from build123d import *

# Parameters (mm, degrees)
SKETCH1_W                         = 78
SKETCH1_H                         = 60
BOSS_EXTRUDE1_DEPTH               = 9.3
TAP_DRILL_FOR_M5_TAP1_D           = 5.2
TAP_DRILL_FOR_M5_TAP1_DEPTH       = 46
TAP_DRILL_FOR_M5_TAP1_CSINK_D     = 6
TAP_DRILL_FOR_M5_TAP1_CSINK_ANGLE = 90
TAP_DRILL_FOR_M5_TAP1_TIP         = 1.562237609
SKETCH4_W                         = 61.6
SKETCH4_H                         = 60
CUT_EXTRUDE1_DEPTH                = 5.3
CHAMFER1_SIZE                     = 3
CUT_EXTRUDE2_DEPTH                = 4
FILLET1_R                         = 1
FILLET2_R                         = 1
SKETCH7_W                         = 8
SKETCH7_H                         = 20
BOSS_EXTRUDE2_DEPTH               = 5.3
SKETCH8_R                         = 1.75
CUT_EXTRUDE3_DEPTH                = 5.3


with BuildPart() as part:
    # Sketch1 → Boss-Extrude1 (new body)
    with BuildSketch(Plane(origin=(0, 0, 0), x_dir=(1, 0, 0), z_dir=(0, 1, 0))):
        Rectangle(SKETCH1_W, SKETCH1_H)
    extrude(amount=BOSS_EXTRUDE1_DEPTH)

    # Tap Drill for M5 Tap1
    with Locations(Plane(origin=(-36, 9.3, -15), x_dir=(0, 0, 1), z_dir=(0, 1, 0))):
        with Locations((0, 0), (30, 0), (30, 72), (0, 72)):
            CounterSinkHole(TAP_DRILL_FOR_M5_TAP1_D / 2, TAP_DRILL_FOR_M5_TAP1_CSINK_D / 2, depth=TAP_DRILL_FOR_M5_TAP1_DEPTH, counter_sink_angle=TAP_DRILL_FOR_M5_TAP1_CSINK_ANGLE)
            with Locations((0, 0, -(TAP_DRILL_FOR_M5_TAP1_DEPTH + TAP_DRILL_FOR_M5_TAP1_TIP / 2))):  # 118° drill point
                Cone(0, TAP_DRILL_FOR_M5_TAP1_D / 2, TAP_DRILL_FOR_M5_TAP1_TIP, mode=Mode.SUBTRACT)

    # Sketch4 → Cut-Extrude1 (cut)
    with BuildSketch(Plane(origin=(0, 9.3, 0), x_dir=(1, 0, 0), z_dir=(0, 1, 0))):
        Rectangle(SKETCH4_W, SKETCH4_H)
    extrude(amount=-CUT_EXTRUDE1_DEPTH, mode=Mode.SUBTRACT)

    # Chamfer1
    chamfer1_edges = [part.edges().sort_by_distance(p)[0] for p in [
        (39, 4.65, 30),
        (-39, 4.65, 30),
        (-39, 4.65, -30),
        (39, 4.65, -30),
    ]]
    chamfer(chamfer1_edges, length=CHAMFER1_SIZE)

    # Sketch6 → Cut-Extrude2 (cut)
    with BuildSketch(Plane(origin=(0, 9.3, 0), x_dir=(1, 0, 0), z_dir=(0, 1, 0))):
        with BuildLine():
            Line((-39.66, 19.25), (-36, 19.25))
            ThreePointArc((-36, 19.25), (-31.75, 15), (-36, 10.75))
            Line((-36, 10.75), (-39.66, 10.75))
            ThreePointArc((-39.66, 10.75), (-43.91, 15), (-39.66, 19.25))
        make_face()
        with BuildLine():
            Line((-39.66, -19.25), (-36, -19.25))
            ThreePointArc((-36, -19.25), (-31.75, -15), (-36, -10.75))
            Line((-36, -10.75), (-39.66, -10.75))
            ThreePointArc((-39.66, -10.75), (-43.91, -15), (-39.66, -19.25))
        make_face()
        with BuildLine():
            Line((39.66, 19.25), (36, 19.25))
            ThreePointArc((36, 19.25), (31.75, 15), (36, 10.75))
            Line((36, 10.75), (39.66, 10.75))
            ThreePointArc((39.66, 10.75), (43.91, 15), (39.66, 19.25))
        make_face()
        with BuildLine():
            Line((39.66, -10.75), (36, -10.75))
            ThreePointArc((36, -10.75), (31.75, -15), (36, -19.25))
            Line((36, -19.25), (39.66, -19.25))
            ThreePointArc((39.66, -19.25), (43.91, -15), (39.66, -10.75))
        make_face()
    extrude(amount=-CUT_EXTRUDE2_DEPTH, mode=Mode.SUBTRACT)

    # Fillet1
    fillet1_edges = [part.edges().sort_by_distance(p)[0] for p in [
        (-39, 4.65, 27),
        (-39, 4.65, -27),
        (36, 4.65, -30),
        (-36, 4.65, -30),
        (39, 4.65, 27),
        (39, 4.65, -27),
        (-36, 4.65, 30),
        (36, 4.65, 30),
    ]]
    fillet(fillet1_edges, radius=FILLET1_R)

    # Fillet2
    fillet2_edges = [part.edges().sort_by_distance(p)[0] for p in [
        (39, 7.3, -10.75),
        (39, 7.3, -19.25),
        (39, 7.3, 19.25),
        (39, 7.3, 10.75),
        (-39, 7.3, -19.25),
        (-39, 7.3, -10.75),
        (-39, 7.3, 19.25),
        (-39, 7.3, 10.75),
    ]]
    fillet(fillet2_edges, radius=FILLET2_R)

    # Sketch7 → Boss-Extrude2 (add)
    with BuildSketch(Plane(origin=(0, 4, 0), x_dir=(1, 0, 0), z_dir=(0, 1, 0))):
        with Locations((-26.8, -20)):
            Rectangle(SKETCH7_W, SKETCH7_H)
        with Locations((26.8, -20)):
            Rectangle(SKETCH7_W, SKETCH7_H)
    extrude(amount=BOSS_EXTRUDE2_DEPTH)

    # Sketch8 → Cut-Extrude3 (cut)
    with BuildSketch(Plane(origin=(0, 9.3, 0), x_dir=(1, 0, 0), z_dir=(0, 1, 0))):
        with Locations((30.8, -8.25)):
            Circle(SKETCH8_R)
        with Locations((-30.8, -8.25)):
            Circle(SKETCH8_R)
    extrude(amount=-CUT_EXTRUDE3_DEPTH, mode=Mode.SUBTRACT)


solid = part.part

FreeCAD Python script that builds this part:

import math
import FreeCAD as App
import Part
import Sketcher
Q = App.Units.Quantity


def edges_at(feature, points):
    """Names of the edges that pass closest to the given points."""
    edges = feature.Shape.Edges
    near = lambda p: min(range(len(edges)), key=lambda i: edges[i].distToShape(Part.Vertex(*p))[0])
    return sorted({f"Edge{near(p) + 1}" for p in points})

doc = App.newDocument("Part")
body = doc.addObject("PartDesign::Body", "Body")

# Sketch on XZ plane
sketch1 = body.newObject("Sketcher::SketchObject", "Sketch")
sketch1.AttachmentSupport = (doc.getObject("XZ_Plane"), [""])
sketch1.MapMode = "FlatFace"
sketch1.addGeometry(Part.LineSegment(App.Vector(-39, -30, 0), App.Vector(-39, 30, 0)), False)
sketch1.addGeometry(Part.LineSegment(App.Vector(-39, 30, 0), App.Vector(39, 30, 0)), False)
sketch1.addGeometry(Part.LineSegment(App.Vector(39, 30, 0), App.Vector(39, -30, 0)), False)
sketch1.addGeometry(Part.LineSegment(App.Vector(39, -30, 0), App.Vector(-39, -30, 0)), False)
sketch1.addConstraint(Sketcher.Constraint("Coincident", 0, 2, 1, 1))
sketch1.addConstraint(Sketcher.Constraint("Coincident", 1, 2, 2, 1))
sketch1.addConstraint(Sketcher.Constraint("Coincident", 2, 2, 3, 1))
sketch1.addConstraint(Sketcher.Constraint("Coincident", 3, 2, 0, 1))
sketch1.addConstraint(Sketcher.Constraint("Vertical", 0))
sketch1.addConstraint(Sketcher.Constraint("Horizontal", 1))
sketch1.addConstraint(Sketcher.Constraint("Vertical", 2))
sketch1.addConstraint(Sketcher.Constraint("Horizontal", 3))
sketch1.addConstraint(Sketcher.Constraint("Symmetric", 0, 2, 2, 2, -1, 1))
sketch1.addConstraint(Sketcher.Constraint("DistanceX", 1, 1, 1, 2, Q("78 mm")))
sketch1.addConstraint(Sketcher.Constraint("DistanceY", 0, 1, 0, 2, Q("60 mm")))
pad1 = body.newObject("PartDesign::Pad", "Pad")
pad1.Profile = sketch1
pad1.Length = 9.3
pad1.Reversed = True

# Sketch on XZ plane
sketch2 = body.newObject("Sketcher::SketchObject", "Sketch001")
sketch2.AttachmentSupport = (doc.getObject("XZ_Plane"), [""])
sketch2.MapMode = "FlatFace"
sketch2.AttachmentOffset = App.Placement(App.Vector(0, 0, -9.3), App.Rotation())
sketch2.addGeometry(Part.Circle(App.Vector(-36, -15, 0), App.Vector(0, 0, 1), 2.6), False)
sketch2.addGeometry(Part.Circle(App.Vector(-36, 15, 0), App.Vector(0, 0, 1), 2.6), False)
sketch2.addGeometry(Part.Circle(App.Vector(36, 15, 0), App.Vector(0, 0, 1), 2.6), False)
sketch2.addGeometry(Part.Circle(App.Vector(36, -15, 0), App.Vector(0, 0, 1), 2.6), False)
sketch2.addConstraint(Sketcher.Constraint("Equal", 0, 1))
sketch2.addConstraint(Sketcher.Constraint("Equal", 1, 2))
sketch2.addConstraint(Sketcher.Constraint("Equal", 2, 3))
sketch2.addConstraint(Sketcher.Constraint("Symmetric", 0, 3, 2, 3, -1, 1))
sketch2.addConstraint(Sketcher.Constraint("Symmetric", 1, 3, 3, 3, -1, 1))
sketch2.addConstraint(Sketcher.Constraint("Symmetric", 1, 3, 2, 3, -2))
sketch2.addConstraint(Sketcher.Constraint("Diameter", 0, Q("5.2 mm")))
sketch2.addConstraint(Sketcher.Constraint("DistanceX", 0, 3, -1, 1, Q("36 mm")))
sketch2.addConstraint(Sketcher.Constraint("DistanceY", 0, 3, -1, 1, Q("15 mm")))
doc.recompute()
hole = body.newObject("PartDesign::Hole", "Hole")
hole.Profile = sketch2
hole.ThreadType = "None"
hole.Diameter = 5.2
hole.DepthType = "Dimension"
hole.Depth = 46
hole.DrillPoint = "Angled"
hole.DrillPointAngle = 118
hole.HoleCutType = "Countersink"
hole.HoleCutDiameter = 6
hole.HoleCutCountersinkAngle = 90
hole.Reversed = True

# Sketch on XZ plane
sketch3 = body.newObject("Sketcher::SketchObject", "Sketch002")
sketch3.AttachmentSupport = (doc.getObject("XZ_Plane"), [""])
sketch3.MapMode = "FlatFace"
sketch3.AttachmentOffset = App.Placement(App.Vector(0, 0, -9.3), App.Rotation())
sketch3.addGeometry(Part.LineSegment(App.Vector(-31, -30, 0), App.Vector(-31, 30, 0)), False)
sketch3.addGeometry(Part.LineSegment(App.Vector(-31, 30, 0), App.Vector(31, 30, 0)), False)
sketch3.addGeometry(Part.LineSegment(App.Vector(31, 30, 0), App.Vector(31, -30, 0)), False)
sketch3.addGeometry(Part.LineSegment(App.Vector(31, -30, 0), App.Vector(-31, -30, 0)), False)
sketch3.addConstraint(Sketcher.Constraint("Coincident", 0, 2, 1, 1))
sketch3.addConstraint(Sketcher.Constraint("Coincident", 1, 2, 2, 1))
sketch3.addConstraint(Sketcher.Constraint("Coincident", 2, 2, 3, 1))
sketch3.addConstraint(Sketcher.Constraint("Coincident", 3, 2, 0, 1))
sketch3.addConstraint(Sketcher.Constraint("Vertical", 0))
sketch3.addConstraint(Sketcher.Constraint("Horizontal", 1))
sketch3.addConstraint(Sketcher.Constraint("Vertical", 2))
sketch3.addConstraint(Sketcher.Constraint("Horizontal", 3))
sketch3.addConstraint(Sketcher.Constraint("Symmetric", 0, 2, 2, 2, -1, 1))
sketch3.addConstraint(Sketcher.Constraint("DistanceY", 0, 1, 0, 2, Q("60 mm")))
sketch3.addConstraint(Sketcher.Constraint("DistanceX", 1, 1, 1, 2, Q("61.6 mm")))
pocket1 = body.newObject("PartDesign::Pocket", "Pocket")
pocket1.Profile = sketch3
pocket1.Length = 5.3
pocket1.Reversed = True
doc.recompute()

chamfer = body.newObject("PartDesign::Chamfer", "Chamfer")
chamfer.Base = (pocket1, edges_at(pocket1, [
    (39, 4.65, 30),
    (-39, 4.65, 30),
    (-39, 4.65, -30),
    (39, 4.65, -30),
]))
chamfer.Size = 3

# Sketch on XZ plane
sketch4 = body.newObject("Sketcher::SketchObject", "Sketch003")
sketch4.AttachmentSupport = (doc.getObject("XZ_Plane"), [""])
sketch4.MapMode = "FlatFace"
sketch4.AttachmentOffset = App.Placement(App.Vector(0, 0, -9.3), App.Rotation())
sketch4.addGeometry(Part.LineSegment(App.Vector(-36, -19.2, 0), App.Vector(-39.7, -19.2, 0)), False)
sketch4.addGeometry(Part.ArcOfCircle(Part.Circle(App.Vector(-39.7, -15, 0), App.Vector(0, 0, 1), 4.2), math.radians(90), math.radians(270)), False)
sketch4.addGeometry(Part.LineSegment(App.Vector(-39.7, -10.8, 0), App.Vector(-36, -10.8, 0)), False)
sketch4.addGeometry(Part.ArcOfCircle(Part.Circle(App.Vector(-36, -15, 0), App.Vector(0, 0, 1), 4.2), math.radians(-90), math.radians(90)), False)
sketch4.addGeometry(Part.LineSegment(App.Vector(-39.7, 19.2, 0), App.Vector(-36, 19.2, 0)), False)
sketch4.addGeometry(Part.ArcOfCircle(Part.Circle(App.Vector(-36, 15, 0), App.Vector(0, 0, 1), 4.2), math.radians(-90), math.radians(90)), False)
sketch4.addGeometry(Part.LineSegment(App.Vector(-36, 10.8, 0), App.Vector(-39.7, 10.8, 0)), False)
sketch4.addGeometry(Part.ArcOfCircle(Part.Circle(App.Vector(-39.7, 15, 0), App.Vector(0, 0, 1), 4.2), math.radians(90), math.radians(270)), False)
sketch4.addGeometry(Part.LineSegment(App.Vector(39.7, -19.2, 0), App.Vector(36, -19.2, 0)), False)
sketch4.addGeometry(Part.ArcOfCircle(Part.Circle(App.Vector(36, -15, 0), App.Vector(0, 0, 1), 4.2), math.radians(90), math.radians(270)), False)
sketch4.addGeometry(Part.LineSegment(App.Vector(36, -10.8, 0), App.Vector(39.7, -10.8, 0)), False)
sketch4.addGeometry(Part.ArcOfCircle(Part.Circle(App.Vector(39.7, -15, 0), App.Vector(0, 0, 1), 4.2), math.radians(-90), math.radians(90)), False)
sketch4.addGeometry(Part.LineSegment(App.Vector(39.7, 10.8, 0), App.Vector(36, 10.8, 0)), False)
sketch4.addGeometry(Part.ArcOfCircle(Part.Circle(App.Vector(36, 15, 0), App.Vector(0, 0, 1), 4.2), math.radians(90), math.radians(270)), False)
sketch4.addGeometry(Part.LineSegment(App.Vector(36, 19.2, 0), App.Vector(39.7, 19.2, 0)), False)
sketch4.addGeometry(Part.ArcOfCircle(Part.Circle(App.Vector(39.7, 15, 0), App.Vector(0, 0, 1), 4.2), math.radians(-90), math.radians(90)), False)
sketch4.addConstraint(Sketcher.Constraint("Tangent", 0, 2, 1, 2))
sketch4.addConstraint(Sketcher.Constraint("Tangent", 1, 1, 2, 1))
sketch4.addConstraint(Sketcher.Constraint("Tangent", 2, 2, 3, 2))
sketch4.addConstraint(Sketcher.Constraint("Tangent", 3, 1, 0, 1))
sketch4.addConstraint(Sketcher.Constraint("Tangent", 4, 2, 5, 2))
sketch4.addConstraint(Sketcher.Constraint("Tangent", 5, 1, 6, 1))
sketch4.addConstraint(Sketcher.Constraint("Tangent", 6, 2, 7, 2))
sketch4.addConstraint(Sketcher.Constraint("Tangent", 7, 1, 4, 1))
sketch4.addConstraint(Sketcher.Constraint("Tangent", 8, 2, 9, 2))
sketch4.addConstraint(Sketcher.Constraint("Tangent", 9, 1, 10, 1))
sketch4.addConstraint(Sketcher.Constraint("Tangent", 10, 2, 11, 2))
sketch4.addConstraint(Sketcher.Constraint("Tangent", 11, 1, 8, 1))
sketch4.addConstraint(Sketcher.Constraint("Tangent", 12, 2, 13, 2))
sketch4.addConstraint(Sketcher.Constraint("Tangent", 13, 1, 14, 1))
sketch4.addConstraint(Sketcher.Constraint("Tangent", 14, 2, 15, 2))
sketch4.addConstraint(Sketcher.Constraint("Tangent", 15, 1, 12, 1))
sketch4.addConstraint(Sketcher.Constraint("Horizontal", 0))
sketch4.addConstraint(Sketcher.Constraint("Horizontal", 2))
sketch4.addConstraint(Sketcher.Constraint("Horizontal", 4))
sketch4.addConstraint(Sketcher.Constraint("Horizontal", 6))
sketch4.addConstraint(Sketcher.Constraint("Horizontal", 8))
sketch4.addConstraint(Sketcher.Constraint("Horizontal", 10))
sketch4.addConstraint(Sketcher.Constraint("Horizontal", 12))
sketch4.addConstraint(Sketcher.Constraint("Horizontal", 14))
sketch4.addConstraint(Sketcher.Constraint("Equal", 3, 5))
sketch4.addConstraint(Sketcher.Constraint("Equal", 7, 9))
sketch4.addConstraint(Sketcher.Constraint("Equal", 11, 13))
sketch4.addConstraint(Sketcher.Constraint("Symmetric", 5, 3, 9, 3, -1, 1))
sketch4.addConstraint(Sketcher.Constraint("Symmetric", 3, 3, 13, 3, -1, 1))
sketch4.addConstraint(Sketcher.Constraint("Symmetric", 3, 3, 9, 3, -2))
sketch4.addConstraint(Sketcher.Constraint("Vertical", 1, 3, 7, 3))
sketch4.addConstraint(Sketcher.Constraint("Vertical", 11, 3, 15, 3))
sketch4.addConstraint(Sketcher.Constraint("Equal", 6, 8))
sketch4.addConstraint(Sketcher.Constraint("Radius", 1, Q("4.25 mm")))
sketch4.addConstraint(Sketcher.Constraint("DistanceY", 1, 3, -1, 1, Q("15 mm")))
sketch4.addConstraint(Sketcher.Constraint("DistanceX", 3, 3, -1, 1, Q("36 mm")))
sketch4.addConstraint(Sketcher.Constraint("DistanceX", 0, 2, 0, 1, Q("3.66 mm")))
pocket2 = body.newObject("PartDesign::Pocket", "Pocket001")
pocket2.Profile = sketch4
pocket2.Length = 4
pocket2.Reversed = True
doc.recompute()

fillet = body.newObject("PartDesign::Fillet", "Fillet")
fillet.Base = (pocket2, edges_at(pocket2, [
    (-39, 4.65, 27),
    (-39, 4.65, -27),
    (36, 4.65, -30),
    (-36, 4.65, -30),
    (39, 4.65, 27),
    (39, 4.65, -27),
    (-36, 4.65, 30),
    (36, 4.65, 30),
]))
fillet.Radius = 1
doc.recompute()

fillet2 = body.newObject("PartDesign::Fillet", "Fillet001")
fillet2.Base = (fillet, edges_at(fillet, [
    (39, 7.3, -10.75),
    (39, 7.3, -19.25),
    (39, 7.3, 19.25),
    (39, 7.3, 10.75),
    (-39, 7.3, -19.25),
    (-39, 7.3, -10.75),
    (-39, 7.3, 19.25),
    (-39, 7.3, 10.75),
]))
fillet2.Radius = 1

# Sketch on XZ plane
sketch5 = body.newObject("Sketcher::SketchObject", "Sketch004")
sketch5.AttachmentSupport = (doc.getObject("XZ_Plane"), [""])
sketch5.MapMode = "FlatFace"
sketch5.AttachmentOffset = App.Placement(App.Vector(0, 0, -4), App.Rotation())
sketch5.addGeometry(Part.LineSegment(App.Vector(-31, 10, 0), App.Vector(-31, 30, 0)), False)
sketch5.addGeometry(Part.LineSegment(App.Vector(-31, 30, 0), App.Vector(-23, 30, 0)), False)
sketch5.addGeometry(Part.LineSegment(App.Vector(-23, 30, 0), App.Vector(-23, 10, 0)), False)
sketch5.addGeometry(Part.LineSegment(App.Vector(-23, 10, 0), App.Vector(-31, 10, 0)), False)
sketch5.addGeometry(Part.LineSegment(App.Vector(23, 10, 0), App.Vector(23, 30, 0)), False)
sketch5.addGeometry(Part.LineSegment(App.Vector(23, 30, 0), App.Vector(31, 30, 0)), False)
sketch5.addGeometry(Part.LineSegment(App.Vector(31, 30, 0), App.Vector(31, 10, 0)), False)
sketch5.addGeometry(Part.LineSegment(App.Vector(31, 10, 0), App.Vector(23, 10, 0)), False)
sketch5.addConstraint(Sketcher.Constraint("Coincident", 0, 2, 1, 1))
sketch5.addConstraint(Sketcher.Constraint("Coincident", 1, 2, 2, 1))
sketch5.addConstraint(Sketcher.Constraint("Coincident", 2, 2, 3, 1))
sketch5.addConstraint(Sketcher.Constraint("Coincident", 3, 2, 0, 1))
sketch5.addConstraint(Sketcher.Constraint("Coincident", 4, 2, 5, 1))
sketch5.addConstraint(Sketcher.Constraint("Coincident", 5, 2, 6, 1))
sketch5.addConstraint(Sketcher.Constraint("Coincident", 6, 2, 7, 1))
sketch5.addConstraint(Sketcher.Constraint("Coincident", 7, 2, 4, 1))
sketch5.addConstraint(Sketcher.Constraint("Vertical", 0))
sketch5.addConstraint(Sketcher.Constraint("Horizontal", 1))
sketch5.addConstraint(Sketcher.Constraint("Vertical", 2))
sketch5.addConstraint(Sketcher.Constraint("Horizontal", 3))
sketch5.addConstraint(Sketcher.Constraint("Vertical", 4))
sketch5.addConstraint(Sketcher.Constraint("Horizontal", 5))
sketch5.addConstraint(Sketcher.Constraint("Vertical", 6))
sketch5.addConstraint(Sketcher.Constraint("Horizontal", 7))
sketch5.addConstraint(Sketcher.Constraint("Symmetric", 1, 2, 4, 2, -2))
sketch5.addConstraint(Sketcher.Constraint("Symmetric", 3, 2, 6, 2, -2))
sketch5.addConstraint(Sketcher.Constraint("DistanceX", 1, 1, 1, 2, Q("8 mm")))
sketch5.addConstraint(Sketcher.Constraint("DistanceY", 0, 1, 0, 2, Q("20 mm")))
sketch5.addConstraint(Sketcher.Constraint("DistanceY", -1, 1, 0, 2, Q("30 mm")))
sketch5.addConstraint(Sketcher.Constraint("DistanceX", 0, 2, -1, 1, Q("30.8 mm")))
pad2 = body.newObject("PartDesign::Pad", "Pad001")
pad2.Profile = sketch5
pad2.Length = 5.3
pad2.Reversed = True

# Sketch on XZ plane
sketch6 = body.newObject("Sketcher::SketchObject", "Sketch005")
sketch6.AttachmentSupport = (doc.getObject("XZ_Plane"), [""])
sketch6.MapMode = "FlatFace"
sketch6.AttachmentOffset = App.Placement(App.Vector(0, 0, -9.3), App.Rotation())
sketch6.addGeometry(Part.Circle(App.Vector(30.8, 8.2, 0), App.Vector(0, 0, 1), 1.8), False)
sketch6.addGeometry(Part.Circle(App.Vector(-30.8, 8.2, 0), App.Vector(0, 0, 1), 1.8), False)
sketch6.addConstraint(Sketcher.Constraint("Equal", 0, 1))
sketch6.addConstraint(Sketcher.Constraint("Symmetric", 0, 3, 1, 3, -2))
sketch6.addConstraint(Sketcher.Constraint("Diameter", 0, Q("3.5 mm")))
sketch6.addConstraint(Sketcher.Constraint("DistanceX", -1, 1, 0, 3, Q("30.8 mm")))
sketch6.addConstraint(Sketcher.Constraint("DistanceY", -1, 1, 0, 3, Q("8.25 mm")))
pocket3 = body.newObject("PartDesign::Pocket", "Pocket002")
pocket3.Profile = sketch6
pocket3.Length = 5.3
pocket3.Reversed = True

doc.recompute()
